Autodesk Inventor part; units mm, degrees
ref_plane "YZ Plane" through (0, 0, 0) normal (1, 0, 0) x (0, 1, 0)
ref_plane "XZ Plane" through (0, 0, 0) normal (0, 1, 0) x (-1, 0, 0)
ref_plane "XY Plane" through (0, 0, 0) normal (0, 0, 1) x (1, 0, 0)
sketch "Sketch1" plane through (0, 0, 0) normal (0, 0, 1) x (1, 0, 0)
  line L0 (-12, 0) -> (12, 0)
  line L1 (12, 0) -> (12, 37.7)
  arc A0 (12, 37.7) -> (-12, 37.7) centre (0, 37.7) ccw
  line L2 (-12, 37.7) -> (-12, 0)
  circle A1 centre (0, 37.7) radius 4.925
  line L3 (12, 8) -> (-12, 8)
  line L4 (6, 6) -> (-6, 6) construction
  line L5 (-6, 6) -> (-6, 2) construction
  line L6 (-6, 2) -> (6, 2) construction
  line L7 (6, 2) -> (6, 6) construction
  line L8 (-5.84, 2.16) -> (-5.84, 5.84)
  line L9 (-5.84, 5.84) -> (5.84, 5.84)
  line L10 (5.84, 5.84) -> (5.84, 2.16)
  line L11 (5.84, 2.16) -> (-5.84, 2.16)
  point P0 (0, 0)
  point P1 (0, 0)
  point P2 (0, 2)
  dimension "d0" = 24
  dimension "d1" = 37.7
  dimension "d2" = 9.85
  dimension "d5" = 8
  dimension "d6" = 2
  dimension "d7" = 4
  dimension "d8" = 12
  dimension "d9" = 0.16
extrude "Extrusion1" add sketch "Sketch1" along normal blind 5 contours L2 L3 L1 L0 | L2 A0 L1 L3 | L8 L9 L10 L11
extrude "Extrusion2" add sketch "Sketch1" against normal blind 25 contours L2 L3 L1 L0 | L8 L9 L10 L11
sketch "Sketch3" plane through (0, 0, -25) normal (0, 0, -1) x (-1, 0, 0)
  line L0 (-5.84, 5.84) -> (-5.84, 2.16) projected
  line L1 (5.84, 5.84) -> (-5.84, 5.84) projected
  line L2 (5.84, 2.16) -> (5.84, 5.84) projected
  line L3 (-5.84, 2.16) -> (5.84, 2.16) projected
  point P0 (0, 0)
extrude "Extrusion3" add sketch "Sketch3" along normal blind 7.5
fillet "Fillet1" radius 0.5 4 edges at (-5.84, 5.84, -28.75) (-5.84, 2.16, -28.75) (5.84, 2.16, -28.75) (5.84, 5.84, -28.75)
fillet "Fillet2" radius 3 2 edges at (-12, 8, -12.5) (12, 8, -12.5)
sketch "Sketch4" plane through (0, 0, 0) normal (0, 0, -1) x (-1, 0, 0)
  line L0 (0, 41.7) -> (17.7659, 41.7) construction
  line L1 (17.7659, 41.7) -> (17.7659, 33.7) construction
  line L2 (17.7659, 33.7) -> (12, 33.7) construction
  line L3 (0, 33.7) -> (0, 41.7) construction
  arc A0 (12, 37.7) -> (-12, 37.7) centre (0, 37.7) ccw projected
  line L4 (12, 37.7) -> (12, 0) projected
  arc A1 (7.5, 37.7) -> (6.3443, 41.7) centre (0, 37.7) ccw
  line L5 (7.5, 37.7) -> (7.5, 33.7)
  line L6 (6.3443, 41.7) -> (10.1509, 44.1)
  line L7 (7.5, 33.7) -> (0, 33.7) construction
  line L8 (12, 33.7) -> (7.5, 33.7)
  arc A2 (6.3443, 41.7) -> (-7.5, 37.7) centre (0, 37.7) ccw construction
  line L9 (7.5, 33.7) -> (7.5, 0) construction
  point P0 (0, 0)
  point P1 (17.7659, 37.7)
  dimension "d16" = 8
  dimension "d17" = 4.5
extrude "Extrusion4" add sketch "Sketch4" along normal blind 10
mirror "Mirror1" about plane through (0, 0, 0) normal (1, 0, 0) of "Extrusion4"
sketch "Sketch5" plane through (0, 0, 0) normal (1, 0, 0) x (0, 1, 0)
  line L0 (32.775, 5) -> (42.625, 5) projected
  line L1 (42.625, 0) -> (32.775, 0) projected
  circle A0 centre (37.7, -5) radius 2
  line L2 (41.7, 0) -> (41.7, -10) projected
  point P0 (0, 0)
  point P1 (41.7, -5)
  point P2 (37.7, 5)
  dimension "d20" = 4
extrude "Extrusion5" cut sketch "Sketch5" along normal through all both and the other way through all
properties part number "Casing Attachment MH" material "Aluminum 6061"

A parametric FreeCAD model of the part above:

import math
import FreeCAD as App
import Part
import Sketcher

V = App.Vector
Q = App.Units.Quantity


def edges_at(feature, points):
    """Names of the edges that pass closest to the given points."""
    edges = feature.Shape.Edges
    near = lambda p: min(range(len(edges)), key=lambda i: edges[i].distToShape(Part.Vertex(*p))[0])
    return sorted({f"Edge{near(p) + 1}" for p in points})

doc = App.newDocument("Part")
params = doc.addObject("Spreadsheet::Sheet", "Params")
for row, (alias, value) in enumerate([
    ("sketch1_radius", "12 mm"),
    ("sketch1_diameter", "9.85 mm"),
    ("sketch1_height", "37.7 mm"),
    ("pad1_length", "5 mm"),
    ("sketch2_width", "24 mm"),
    ("sketch2_height", "8 mm"),
    ("pad2_length", "25 mm"),
    ("sketch3_width", "11.68 mm"),
    ("sketch3_height", "3.68 mm"),
    ("pad3_length", "7.5 mm"),
    ("fillet_radius", "0.5 mm"),
    ("fillet2_radius", "3 mm"),
    ("sketch4_width", "4.5 mm"),
    ("sketch4_radius", "12 mm"),
    ("sketch4_height", "4 mm"),
    ("pad4_length", "10 mm"),
    ("sketch5_diameter", "4 mm"),
], start=1):
    params.set(f"A{row}", alias)
    params.set(f"B{row}", "=" + value)
    params.setAlias(f"B{row}", alias)

body = doc.addObject("PartDesign::Body", "Body")

sketch1 = body.newObject("Sketcher::SketchObject", "Sketch")
sketch1.AttachmentSupport = (doc.getObject("XY_Plane"), [""])
sketch1.MapMode = "FlatFace"
sketch1.addGeometry([
    Part.LineSegment(V(-12, 0, 0), V(12, 0, 0)),
    Part.LineSegment(V(12, 0, 0), V(12, 37.7, 0)),
    Part.ArcOfCircle(Part.Circle(V(0, 37.7, 0), V(0, 0, 1), 12), math.radians(0), math.radians(180)),
    Part.LineSegment(V(-12, 37.7, 0), V(-12, 0, 0)),
    Part.Circle(V(0, 37.7, 0), V(0, 0, 1), 4.9),
], False)
sketch1.addConstraint([
    Sketcher.Constraint("Coincident", 0, 2, 1, 1),
    Sketcher.Constraint("Tangent", 1, 2, 2, 1),
    Sketcher.Constraint("Tangent", 2, 2, 3, 1),
    Sketcher.Constraint("Coincident", 3, 2, 0, 1),
    Sketcher.Constraint("Horizontal", 0),
    Sketcher.Constraint("Vertical", 1),
    Sketcher.Constraint("Vertical", 3),
    Sketcher.Constraint("Coincident", 4, 3, 2, 3),
    Sketcher.Constraint("Symmetric", 0, 2, 3, 2, -1, 1),
    Sketcher.Constraint("Radius", 2, Q("12 mm")),
    Sketcher.Constraint("Diameter", 4, Q("9.85 mm")),
    Sketcher.Constraint("DistanceY", 1, 1, 1, 2, Q("37.7 mm")),
])
sketch1.setExpression("Constraints[9]", "Params.sketch1_radius")
sketch1.setExpression("Constraints[10]", "Params.sketch1_diameter")
sketch1.setExpression("Constraints[11]", "Params.sketch1_height")
pad1 = body.newObject("PartDesign::Pad", "Pad")
pad1.Profile = sketch1
pad1.setExpression("Length", "Params.pad1_length")

sketch2 = body.newObject("Sketcher::SketchObject", "Sketch001")
sketch2.AttachmentSupport = (doc.getObject("XY_Plane"), [""])
sketch2.MapMode = "FlatFace"
sketch2.addGeometry([
    Part.LineSegment(V(-12, 8, 0), V(-12, 0, 0)),
    Part.LineSegment(V(-12, 0, 0), V(12, 0, 0)),
    Part.LineSegment(V(12, 0, 0), V(12, 8, 0)),
    Part.LineSegment(V(12, 8, 0), V(-12, 8, 0)),
], False)
sketch2.addConstraint([
    Sketcher.Constraint("Coincident", 0, 2, 1, 1),
    Sketcher.Constraint("Coincident", 1, 2, 2, 1),
    Sketcher.Constraint("Coincident", 2, 2, 3, 1),
    Sketcher.Constraint("Coincident", 3, 2, 0, 1),
    Sketcher.Constraint("Vertical", 0),
    Sketcher.Constraint("Horizontal", 1),
    Sketcher.Constraint("Vertical", 2),
    Sketcher.Constraint("Horizontal", 3),
    Sketcher.Constraint("Symmetric", 0, 2, 1, 2, -1, 1),
    Sketcher.Constraint("DistanceX", 1, 1, 1, 2, Q("24 mm")),
    Sketcher.Constraint("DistanceY", 0, 2, 0, 1, Q("8 mm")),
])
sketch2.setExpression("Constraints[9]", "Params.sketch2_width")
sketch2.setExpression("Constraints[10]", "Params.sketch2_height")
pad2 = body.newObject("PartDesign::Pad", "Pad001")
pad2.Profile = sketch2
pad2.setExpression("Length", "Params.pad2_length")
pad2.Reversed = True

sketch3 = body.newObject("Sketcher::SketchObject", "Sketch002")
sketch3.AttachmentSupport = (doc.getObject("XY_Plane"), [""])
sketch3.MapMode = "FlatFace"
sketch3.AttachmentOffset = App.Placement(V(0, 0, -25), App.Rotation())
sketch3.addGeometry([
    Part.LineSegment(V(-5.8, 5.8, 0), V(5.8, 5.8, 0)),
    Part.LineSegment(V(5.8, 5.8, 0), V(5.8, 2.2, 0)),
    Part.LineSegment(V(5.8, 2.2, 0), V(-5.8, 2.2, 0)),
    Part.LineSegment(V(-5.8, 2.2, 0), V(-5.8, 5.8, 0)),
], False)
sketch3.addConstraint([
    Sketcher.Constraint("Coincident", 0, 2, 1, 1),
    Sketcher.Constraint("Coincident", 1, 2, 2, 1),
    Sketcher.Constraint("Coincident", 2, 2, 3, 1),
    Sketcher.Constraint("Coincident", 3, 2, 0, 1),
    Sketcher.Constraint("Horizontal", 0),
    Sketcher.Constraint("Vertical", 1),
    Sketcher.Constraint("Horizontal", 2),
    Sketcher.Constraint("Vertical", 3),
    Sketcher.Constraint("DistanceX", 0, 1, 0, 2, Q("11.68 mm")),
    Sketcher.Constraint("DistanceY", 1, 2, 1, 1, Q("3.68 mm")),
    Sketcher.Constraint("DistanceX", -1, 1, 0, 2, Q("5.84 mm")),
    Sketcher.Constraint("DistanceY", -1, 1, 0, 2, Q("5.84 mm")),
])
sketch3.setExpression("Constraints[8]", "Params.sketch3_width")
sketch3.setExpression("Constraints[9]", "Params.sketch3_height")
pad3 = body.newObject("PartDesign::Pad", "Pad002")
pad3.Profile = sketch3
pad3.setExpression("Length", "Params.pad3_length")
pad3.Reversed = True
doc.recompute()

fillet = body.newObject("PartDesign::Fillet", "Fillet")
fillet.Base = (pad3, edges_at(pad3, [
    (-5.84, 5.84, -28.75),
    (-5.84, 2.16, -28.75),
    (5.84, 2.16, -28.75),
    (5.84, 5.84, -28.75),
]))
fillet.setExpression("Radius", "Params.fillet_radius")
doc.recompute()

fillet2 = body.newObject("PartDesign::Fillet", "Fillet001")
fillet2.Base = (fillet, edges_at(fillet, [(-12, 8, -12.5), (12, 8, -12.5)]))
fillet2.setExpression("Radius", "Params.fillet2_radius")

sketch4 = body.newObject("Sketcher::SketchObject", "Sketch003")
sketch4.AttachmentSupport = (doc.getObject("XY_Plane"), [""])
sketch4.MapMode = "FlatFace"
sketch4.addGeometry([
    Part.LineSegment(V(-12, 33.7, 0), V(-12, 37.7, 0)),
    Part.ArcOfCircle(Part.Circle(V(0, 37.7, 0), V(0, 0, 1), 12), math.radians(148), math.radians(180)),
    Part.LineSegment(V(-10.2, 44.1, 0), V(-6.3, 41.7, 0)),
    Part.ArcOfCircle(Part.Circle(V(0, 37.7, 0), V(0, 0, 1), 7.5), math.radians(148), math.radians(180)),
    Part.LineSegment(V(-7.5, 37.7, 0), V(-7.5, 33.7, 0)),
    Part.LineSegment(V(-7.5, 33.7, 0), V(-12, 33.7, 0)),
], False)
sketch4.addConstraint([
    Sketcher.Constraint("Tangent", 0, 2, 1, 2),
    Sketcher.Constraint("Coincident", 1, 1, 2, 1),
    Sketcher.Constraint("Coincident", 2, 2, 3, 1),
    Sketcher.Constraint("Tangent", 3, 2, 4, 1),
    Sketcher.Constraint("Coincident", 4, 2, 5, 1),
    Sketcher.Constraint("Coincident", 5, 2, 0, 1),
    Sketcher.Constraint("Vertical", 0),
    Sketcher.Constraint("Vertical", 4),
    Sketcher.Constraint("Horizontal", 5),
    Sketcher.Constraint("Coincident", 3, 3, 1, 3),
    Sketcher.Constraint("PointOnObject", 1, 3, -2),
    Sketcher.Constraint("DistanceX", 5, 2, 5, 1, Q("4.5 mm")),
    Sketcher.Constraint("Radius", 1, Q("12 mm")),
    Sketcher.Constraint("DistanceY", 4, 2, 2, 2, Q("8 mm")),
    Sketcher.Constraint("DistanceY", 0, 1, 0, 2, Q("4 mm")),
    Sketcher.Constraint("DistanceY", -1, 1, 1, 3, Q("37.7 mm")),
    Sketcher.Constraint("DistanceY", -1, 1, 1, 1, Q("44.1 mm")),
])
sketch4.setExpression("Constraints[11]", "Params.sketch4_width")
sketch4.setExpression("Constraints[12]", "Params.sketch4_radius")
sketch4.setExpression("Constraints[14]", "Params.sketch4_height")
pad4 = body.newObject("PartDesign::Pad", "Pad003")
pad4.Profile = sketch4
pad4.setExpression("Length", "Params.pad4_length")
pad4.Reversed = True
doc.recompute()

mirrored = body.newObject("PartDesign::Mirrored", "Mirrored")
mirrored.Originals = [pad4]
mirrored.MirrorPlane = (doc.getObject("YZ_Plane"), [""])
body.Tip = mirrored

sketch5 = body.newObject("Sketcher::SketchObject", "Sketch004")
sketch5.AttachmentSupport = (doc.getObject("YZ_Plane"), [""])
sketch5.MapMode = "FlatFace"
sketch5.addGeometry(Part.Circle(V(37.7, -5, 0), V(0, 0, 1), 2), False)
sketch5.addConstraint([
    Sketcher.Constraint("Diameter", 0, Q("4 mm")),
    Sketcher.Constraint("DistanceY", 0, 3, -1, 1, Q("5 mm")),
    Sketcher.Constraint("DistanceX", -1, 1, 0, 3, Q("37.7 mm")),
])
sketch5.setExpression("Constraints[0]", "Params.sketch5_diameter")
pocket1 = body.newObject("PartDesign::Pocket", "Pocket")
pocket1.Profile = sketch5
pocket1.Type = "ThroughAll"
pocket1.Midplane = True

doc.recompute()
